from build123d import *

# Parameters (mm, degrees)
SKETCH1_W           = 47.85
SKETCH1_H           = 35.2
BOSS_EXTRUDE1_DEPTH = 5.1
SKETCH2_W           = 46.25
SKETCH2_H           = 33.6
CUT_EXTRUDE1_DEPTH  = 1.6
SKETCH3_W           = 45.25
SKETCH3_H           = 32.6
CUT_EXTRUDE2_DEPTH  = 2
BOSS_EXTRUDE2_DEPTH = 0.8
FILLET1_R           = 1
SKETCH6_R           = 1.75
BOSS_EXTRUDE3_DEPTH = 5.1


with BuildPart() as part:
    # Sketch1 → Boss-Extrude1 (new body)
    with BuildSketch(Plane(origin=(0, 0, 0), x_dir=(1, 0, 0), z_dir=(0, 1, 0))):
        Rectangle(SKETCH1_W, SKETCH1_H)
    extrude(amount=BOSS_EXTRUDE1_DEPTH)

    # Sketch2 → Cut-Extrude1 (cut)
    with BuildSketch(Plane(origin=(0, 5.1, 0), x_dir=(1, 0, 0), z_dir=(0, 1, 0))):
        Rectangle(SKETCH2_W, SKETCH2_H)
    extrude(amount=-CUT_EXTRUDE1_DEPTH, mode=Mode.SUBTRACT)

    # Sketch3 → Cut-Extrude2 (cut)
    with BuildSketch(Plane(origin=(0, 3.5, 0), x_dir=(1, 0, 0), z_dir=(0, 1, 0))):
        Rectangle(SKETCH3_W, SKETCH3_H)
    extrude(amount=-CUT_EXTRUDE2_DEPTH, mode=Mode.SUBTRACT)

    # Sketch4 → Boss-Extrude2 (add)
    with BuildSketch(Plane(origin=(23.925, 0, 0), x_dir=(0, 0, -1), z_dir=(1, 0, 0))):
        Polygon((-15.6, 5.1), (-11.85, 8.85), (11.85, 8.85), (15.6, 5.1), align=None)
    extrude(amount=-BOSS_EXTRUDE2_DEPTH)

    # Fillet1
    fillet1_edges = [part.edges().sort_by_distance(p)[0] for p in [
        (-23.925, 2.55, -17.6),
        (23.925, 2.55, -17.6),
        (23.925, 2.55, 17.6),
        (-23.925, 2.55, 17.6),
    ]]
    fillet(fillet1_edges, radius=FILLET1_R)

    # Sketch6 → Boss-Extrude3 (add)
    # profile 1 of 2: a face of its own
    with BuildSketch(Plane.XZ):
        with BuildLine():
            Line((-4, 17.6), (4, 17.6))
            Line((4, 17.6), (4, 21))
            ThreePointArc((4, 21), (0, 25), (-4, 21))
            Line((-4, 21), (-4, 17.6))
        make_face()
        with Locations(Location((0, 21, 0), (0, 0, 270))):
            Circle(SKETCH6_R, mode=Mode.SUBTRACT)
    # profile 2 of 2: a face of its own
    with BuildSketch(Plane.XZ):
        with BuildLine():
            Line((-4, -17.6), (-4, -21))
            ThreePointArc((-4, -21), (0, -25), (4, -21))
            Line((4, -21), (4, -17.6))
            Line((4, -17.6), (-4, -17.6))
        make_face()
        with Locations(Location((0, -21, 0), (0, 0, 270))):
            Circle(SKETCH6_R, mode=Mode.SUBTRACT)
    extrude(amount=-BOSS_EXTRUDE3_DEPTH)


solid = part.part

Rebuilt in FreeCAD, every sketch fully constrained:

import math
import FreeCAD as App
import Part
import Sketcher

V = App.Vector


def edges_at(feature, points):
    """Names of the edges that pass closest to the given points."""
    edges = feature.Shape.Edges
    near = lambda p: min(range(len(edges)), key=lambda i: edges[i].distToShape(Part.Vertex(*p))[0])
    return sorted({f"Edge{near(p) + 1}" for p in points})


def add_polygon(sketch, points):
    """Adds a closed chain of lines whose ends are joined by coincident constraints."""
    first, n = sketch.GeometryCount, len(points)
    for a, b in zip(points, points[1:] + points[:1]):
        sketch.addGeometry(Part.LineSegment(App.Vector(*a, 0), App.Vector(*b, 0)), False)
    for i in range(n):
        sketch.addConstraint(Sketcher.Constraint("Coincident", first + i, 2, first + (i + 1) % n, 1))

doc = App.newDocument("Part")
body = doc.addObject("PartDesign::Body", "Body")

# Sketch on XZ plane
sketch1 = body.newObject("Sketcher::SketchObject", "Sketch")
sketch1.AttachmentSupport = (doc.getObject("XZ_Plane"), [""])
sketch1.MapMode = "FlatFace"
add_polygon(sketch1, [(-24, -18), (-24, 18), (24, 18), (24, -18)])  # lines 0-3
sketch1.addConstraint([
    Sketcher.Constraint("Vertical", 0),
    Sketcher.Constraint("Horizontal", 1),
    Sketcher.Constraint("Vertical", 2),
    Sketcher.Constraint("Horizontal", 3),
    Sketcher.Constraint("Symmetric", 0, 2, 2, 2, -1, 1),
    Sketcher.Constraint("DistanceY", 0, 1, 0, 2, 35.2),
    Sketcher.Constraint("DistanceX", 1, 1, 1, 2, 47.85),
])
pad1 = body.newObject("PartDesign::Pad", "Pad")
pad1.Profile = sketch1
pad1.Length = 5.1
pad1.Reversed = True

# Sketch on XZ plane
sketch2 = body.newObject("Sketcher::SketchObject", "Sketch001")
sketch2.AttachmentSupport = (doc.getObject("XZ_Plane"), [""])
sketch2.MapMode = "FlatFace"
sketch2.AttachmentOffset = App.Placement(V(0, 0, -5.1), App.Rotation())
add_polygon(sketch2, [(-23, -17), (-23, 17), (23, 17), (23, -17)])  # lines 0-3
sketch2.addConstraint([
    Sketcher.Constraint("Vertical", 0),
    Sketcher.Constraint("Horizontal", 1),
    Sketcher.Constraint("Vertical", 2),
    Sketcher.Constraint("Horizontal", 3),
    Sketcher.Constraint("Symmetric", 0, 2, 2, 2, -1, 1),
    Sketcher.Constraint("DistanceY", 0, 1, 0, 2, 33.6),
    Sketcher.Constraint("DistanceX", 1, 1, 1, 2, 46.25),
])
pocket1 = body.newObject("PartDesign::Pocket", "Pocket")
pocket1.Profile = sketch2
pocket1.Length = 1.6
pocket1.Reversed = True

# Sketch on XZ plane
sketch3 = body.newObject("Sketcher::SketchObject", "Sketch002")
sketch3.AttachmentSupport = (doc.getObject("XZ_Plane"), [""])
sketch3.MapMode = "FlatFace"
sketch3.AttachmentOffset = App.Placement(V(0, 0, -3.5), App.Rotation())
add_polygon(sketch3, [(-23, -16), (-23, 16), (23, 16), (23, -16)])  # lines 0-3
sketch3.addConstraint([
    Sketcher.Constraint("Vertical", 0),
    Sketcher.Constraint("Horizontal", 1),
    Sketcher.Constraint("Vertical", 2),
    Sketcher.Constraint("Horizontal", 3),
    Sketcher.Constraint("Symmetric", 0, 2, 2, 2, -1, 1),
    Sketcher.Constraint("DistanceY", 0, 1, 0, 2, 32.6),
    Sketcher.Constraint("DistanceX", 1, 1, 1, 2, 45.25),
])
pocket2 = body.newObject("PartDesign::Pocket", "Pocket001")
pocket2.Profile = sketch3
pocket2.Length = 2
pocket2.Reversed = True

# Sketch on YZ plane
sketch4 = body.newObject("Sketcher::SketchObject", "Sketch003")
sketch4.AttachmentSupport = (doc.getObject("YZ_Plane"), [""])
sketch4.MapMode = "FlatFace"
sketch4.AttachmentOffset = App.Placement(V(0, 0, 23.925), App.Rotation())
add_polygon(sketch4, [(9, 12), (5, 16), (5, -16), (9, -12)])  # lines 0-3
sketch4.addConstraint([
    Sketcher.Constraint("Vertical", 1),
    Sketcher.Constraint("Vertical", 3),
    Sketcher.Constraint("Perpendicular", 0, 2),
    Sketcher.Constraint("Equal", 0, 2),
    Sketcher.Constraint("DistanceY", 1, 2, 1, 1, 31.2),
    Sketcher.Constraint("DistanceY", 3, 1, 3, 2, 23.7),
    Sketcher.Constraint("DistanceX", -1, 1, 0, 2, 5.1),
    Sketcher.Constraint("DistanceY", -1, 1, 0, 2, 15.6),
])
pad2 = body.newObject("PartDesign::Pad", "Pad001")
pad2.Profile = sketch4
pad2.Length = 0.8
pad2.Reversed = True
doc.recompute()

fillet = body.newObject("PartDesign::Fillet", "Fillet")
fillet.Base = (pad2, edges_at(pad2, [
    (-23.925, 2.55, -17.6),
    (23.925, 2.55, -17.6),
    (23.925, 2.55, 17.6),
    (-23.925, 2.55, 17.6),
]))
fillet.Radius = 1

# Sketch on XZ plane
sketch5 = body.newObject("Sketcher::SketchObject", "Sketch004")
sketch5.AttachmentSupport = (doc.getObject("XZ_Plane"), [""])
sketch5.MapMode = "FlatFace"
sketch5.addGeometry([
    Part.LineSegment(V(-4, 17.6, 0), V(4, 17.6, 0)),  # 0
    Part.LineSegment(V(4, 17.6, 0), V(4, 21, 0)),  # 1
    Part.ArcOfCircle(Part.Circle(V(0, 21, 0), V(0, 0, 1), 4), math.radians(0), math.radians(180)),  # 2
    Part.LineSegment(V(-4, 21, 0), V(-4, 17.6, 0)),  # 3
    Part.Circle(V(0, 21, 0), V(0, 0, 1), 1.8),  # 4
    Part.LineSegment(V(-4, -17.6, 0), V(-4, -21, 0)),  # 5
    Part.ArcOfCircle(Part.Circle(V(0, -21, 0), V(0, 0, 1), 4), math.radians(180), math.radians(360)),  # 6
    Part.LineSegment(V(4, -21, 0), V(4, -17.6, 0)),  # 7
    Part.LineSegment(V(4, -17.6, 0), V(-4, -17.6, 0)),  # 8
    Part.Circle(V(0, -21, 0), V(0, 0, 1), 1.8),  # 9
], False)
sketch5.addConstraint([
    Sketcher.Constraint("Coincident", 0, 2, 1, 1),
    Sketcher.Constraint("Tangent", 1, 2, 2, 1),
    Sketcher.Constraint("Tangent", 2, 2, 3, 1),
    Sketcher.Constraint("Coincident", 3, 2, 0, 1),
    Sketcher.Constraint("Tangent", 5, 2, 6, 1),
    Sketcher.Constraint("Tangent", 6, 2, 7, 1),
    Sketcher.Constraint("Coincident", 7, 2, 8, 1),
    Sketcher.Constraint("Coincident", 8, 2, 5, 1),
    Sketcher.Constraint("Horizontal", 0),
    Sketcher.Constraint("Vertical", 1),
    Sketcher.Constraint("Vertical", 3),
    Sketcher.Constraint("Vertical", 5),
    Sketcher.Constraint("Vertical", 7),
    Sketcher.Constraint("Horizontal", 8),
    Sketcher.Constraint("Coincident", 4, 3, 2, 3),
    Sketcher.Constraint("Coincident", 9, 3, 6, 3),
    Sketcher.Constraint("Equal", 2, 6),
    Sketcher.Constraint("Equal", 4, 9),
    Sketcher.Constraint("Symmetric", 2, 3, 6, 3, -1, 1),
    Sketcher.Constraint("Symmetric", 0, 2, 7, 2, -1),
    Sketcher.Constraint("Radius", 2, 4.0),
    Sketcher.Constraint("Diameter", 4, 3.5),
    Sketcher.Constraint("DistanceY", 1, 1, 1, 2, 3.4),
    Sketcher.Constraint("DistanceY", -1, 1, 2, 3, 21.0),
])
pad3 = body.newObject("PartDesign::Pad", "Pad002")
pad3.Profile = sketch5
pad3.Length = 5.1
pad3.Reversed = True

doc.recompute()
